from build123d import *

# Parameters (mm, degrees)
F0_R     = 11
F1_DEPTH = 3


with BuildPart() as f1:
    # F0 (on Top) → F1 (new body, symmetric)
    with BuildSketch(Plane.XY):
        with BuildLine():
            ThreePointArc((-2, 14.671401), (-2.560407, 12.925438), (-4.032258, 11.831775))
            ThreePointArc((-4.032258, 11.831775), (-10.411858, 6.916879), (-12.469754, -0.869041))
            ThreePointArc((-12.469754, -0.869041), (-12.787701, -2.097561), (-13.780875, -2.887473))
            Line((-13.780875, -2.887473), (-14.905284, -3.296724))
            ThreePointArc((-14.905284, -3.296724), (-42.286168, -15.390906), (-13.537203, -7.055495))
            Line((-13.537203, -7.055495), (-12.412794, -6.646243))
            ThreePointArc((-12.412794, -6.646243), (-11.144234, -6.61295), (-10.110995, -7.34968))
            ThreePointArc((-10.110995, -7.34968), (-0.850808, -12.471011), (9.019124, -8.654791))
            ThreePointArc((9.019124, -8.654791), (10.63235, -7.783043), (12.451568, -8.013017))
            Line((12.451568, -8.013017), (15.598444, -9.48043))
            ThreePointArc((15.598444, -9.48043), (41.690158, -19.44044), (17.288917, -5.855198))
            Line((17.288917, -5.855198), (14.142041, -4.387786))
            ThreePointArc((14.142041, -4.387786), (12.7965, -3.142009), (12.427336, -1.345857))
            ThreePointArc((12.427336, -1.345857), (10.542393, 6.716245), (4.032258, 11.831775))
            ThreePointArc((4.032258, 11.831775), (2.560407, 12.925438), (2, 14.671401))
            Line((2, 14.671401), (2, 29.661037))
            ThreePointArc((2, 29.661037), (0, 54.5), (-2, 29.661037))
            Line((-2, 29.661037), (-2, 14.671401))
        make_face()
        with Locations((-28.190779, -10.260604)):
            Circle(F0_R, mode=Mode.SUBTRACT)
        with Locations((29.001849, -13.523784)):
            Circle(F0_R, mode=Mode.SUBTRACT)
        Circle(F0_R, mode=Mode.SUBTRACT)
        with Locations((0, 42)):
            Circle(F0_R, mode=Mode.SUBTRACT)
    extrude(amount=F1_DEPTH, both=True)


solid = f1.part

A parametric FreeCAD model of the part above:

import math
import FreeCAD as App
import Part
import Sketcher

V = App.Vector
Q = App.Units.Quantity

doc = App.newDocument("Part")
params = doc.addObject("Spreadsheet::Sheet", "Params")
for row, (alias, value) in enumerate([
    ("sketch1_diameter", "22 mm"),
    ("sketch1_radius", "3 mm"),
    ("sketch1_radius2", "2.000002 mm"),
    ("sketch1_radius3", "15 mm"),
    ("sketch1_radius4", "14 mm"),
    ("pad1_length", "6 mm"),
], start=1):
    params.set(f"A{row}", alias)
    params.set(f"B{row}", "=" + value)
    params.setAlias(f"B{row}", alias)

body = doc.addObject("PartDesign::Body", "Body")

sketch1 = body.newObject("Sketcher::SketchObject", "Sketch")
sketch1.AttachmentSupport = (doc.getObject("XY_Plane"), [""])
sketch1.MapMode = "FlatFace"
sketch1.addGeometry(Part.ArcOfCircle(Part.Circle(V(-5, 14.671401, 0), V(0, 0, 1), 3), math.radians(-71.180941), math.radians(0.000007)), False)
sketch1.addGeometry(Part.ArcOfCircle(Part.Circle(V(0, 0, 0), V(0, 0, 1), 12.5), math.radians(108.819063), math.radians(183.986608)), False)
sketch1.addGeometry(Part.ArcOfCircle(Part.Circle(V(-14.464917, -1.008086, 0), V(0, 0, 1), 2.000002), math.radians(-69.999979), math.radians(3.986565)), False)
sketch1.addGeometry(Part.LineSegment(V(-13.780875, -2.887473, 0), V(-14.905284, -3.296724, 0)), False)
sketch1.addGeometry(Part.ArcOfCircle(Part.Circle(V(-28.190778, -10.260605, 0), V(0, 0, 1), 15), math.radians(27.66226), math.radians(372.337746)), False)
sketch1.addGeometry(Part.LineSegment(V(-13.537203, -7.055495, 0), V(-12.412794, -6.646243, 0)), False)
sketch1.addGeometry(Part.ArcOfCircle(Part.Circle(V(-11.728753, -8.525625, 0), V(0, 0, 1), 1.999997), math.radians(36.013323), math.radians(110.000044)), False)
sketch1.addGeometry(Part.ArcOfCircle(Part.Circle(V(0, 0.000002, 0), V(0, 0, 1), 12.500002), math.radians(-143.986596), math.radians(-43.81907)), False)
sketch1.addGeometry(Part.ArcOfCircle(Part.Circle(V(11.183714, -10.731941, 0), V(0, 0, 1), 3), math.radians(65.000018), math.radians(136.180937)), False)
sketch1.addGeometry(Part.LineSegment(V(12.451568, -8.013017, 0), V(15.598444, -9.48043, 0)), False)
sketch1.addGeometry(Part.ArcOfCircle(Part.Circle(V(29.00185, -13.523783, 0), V(0, 0, 1), 14), math.radians(163.213218), math.radians(506.786793)), False)
sketch1.addGeometry(Part.LineSegment(V(17.288917, -5.855198, 0), V(14.142041, -4.387786, 0)), False)
sketch1.addGeometry(Part.ArcOfCircle(Part.Circle(V(15.409896, -1.668863, 0), V(0, 0, 1), 3), math.radians(173.819054), math.radians(244.99999)), False)
sketch1.addGeometry(Part.ArcOfCircle(Part.Circle(V(-0.000002, -0.000001, 0), V(0, 0, 1), 12.500002), math.radians(-6.180929), math.radians(71.180932)), False)
sketch1.addGeometry(Part.ArcOfCircle(Part.Circle(V(5, 14.671401, 0), V(0, 0, 1), 3), math.radians(179.999993), math.radians(251.180941)), False)
sketch1.addGeometry(Part.LineSegment(V(2, 14.671401, 0), V(2, 29.661037, 0)), False)
sketch1.addGeometry(Part.ArcOfCircle(Part.Circle(V(0, 42, 0), V(0, 0, 1), 12.5), math.radians(-80.793104), math.radians(260.793104)), False)
sketch1.addGeometry(Part.LineSegment(V(-2, 29.661037, 0), V(-2, 14.671401, 0)), False)
sketch1.addGeometry(Part.Circle(V(-28.190779, -10.260604, 0), V(0, 0, 1), 11), False)
sketch1.addGeometry(Part.Circle(V(0, 0, 0), V(0, 0, 1), 11), False)
sketch1.addGeometry(Part.Circle(V(29.001849, -13.523784, 0), V(0, 0, 1), 11), False)
sketch1.addGeometry(Part.Circle(V(0, 42, 0), V(0, 0, 1), 11), False)
sketch1.addConstraint(Sketcher.Constraint("Tangent", 0, 1, 1, 1))
sketch1.addConstraint(Sketcher.Constraint("Tangent", 1, 2, 2, 2))
sketch1.addConstraint(Sketcher.Constraint("Tangent", 2, 1, 3, 1))
sketch1.addConstraint(Sketcher.Constraint("Coincident", 3, 2, 4, 1))
sketch1.addConstraint(Sketcher.Constraint("Coincident", 4, 2, 5, 1))
sketch1.addConstraint(Sketcher.Constraint("Tangent", 5, 2, 6, 2))
sketch1.addConstraint(Sketcher.Constraint("Tangent", 6, 1, 7, 1))
sketch1.addConstraint(Sketcher.Constraint("Tangent", 7, 2, 8, 2))
sketch1.addConstraint(Sketcher.Constraint("Tangent", 8, 1, 9, 1))
sketch1.addConstraint(Sketcher.Constraint("Coincident", 9, 2, 10, 1))
sketch1.addConstraint(Sketcher.Constraint("Coincident", 10, 2, 11, 1))
sketch1.addConstraint(Sketcher.Constraint("Tangent", 11, 2, 12, 2))
sketch1.addConstraint(Sketcher.Constraint("Tangent", 12, 1, 13, 1))
sketch1.addConstraint(Sketcher.Constraint("Tangent", 13, 2, 14, 2))
sketch1.addConstraint(Sketcher.Constraint("Tangent", 14, 1, 15, 1))
sketch1.addConstraint(Sketcher.Constraint("Coincident", 15, 2, 16, 1))
sketch1.addConstraint(Sketcher.Constraint("Coincident", 16, 2, 17, 1))
sketch1.addConstraint(Sketcher.Constraint("Tangent", 17, 2, 0, 2))
sketch1.addConstraint(Sketcher.Constraint("Vertical", 15))
sketch1.addConstraint(Sketcher.Constraint("Vertical", 17))
sketch1.addConstraint(Sketcher.Constraint("Coincident", 1, 3, -1, 1))
sketch1.addConstraint(Sketcher.Constraint("Coincident", 7, 3, -1, 1))
sketch1.addConstraint(Sketcher.Constraint("Coincident", 13, 3, -1, 1))
sketch1.addConstraint(Sketcher.Constraint("Coincident", 19, 3, -1, 1))
sketch1.addConstraint(Sketcher.Constraint("Coincident", 18, 3, 4, 3))
sketch1.addConstraint(Sketcher.Constraint("Coincident", 20, 3, 10, 3))
sketch1.addConstraint(Sketcher.Constraint("Coincident", 21, 3, 16, 3))
sketch1.addConstraint(Sketcher.Constraint("Equal", 0, 8))
sketch1.addConstraint(Sketcher.Constraint("Equal", 8, 12))
sketch1.addConstraint(Sketcher.Constraint("Equal", 7, 13))
sketch1.addConstraint(Sketcher.Constraint("Equal", 12, 14))
sketch1.addConstraint(Sketcher.Constraint("Equal", 13, 16))
sketch1.addConstraint(Sketcher.Constraint("Equal", 18, 19))
sketch1.addConstraint(Sketcher.Constraint("Equal", 19, 20))
sketch1.addConstraint(Sketcher.Constraint("Equal", 20, 21))
sketch1.addConstraint(Sketcher.Constraint("Symmetric", 0, 3, 14, 3, -2))
sketch1.addConstraint(Sketcher.Constraint("PointOnObject", 16, 3, -2))
sketch1.addConstraint(Sketcher.Constraint("Parallel", 3, 5))
sketch1.addConstraint(Sketcher.Constraint("Parallel", 9, 11))
sketch1.addConstraint(Sketcher.Constraint("Equal", 3, 5))
sketch1.addConstraint(Sketcher.Constraint("Equal", 9, 11))
sketch1.addConstraint(Sketcher.Constraint("Diameter", 18, 22.0))
sketch1.addConstraint(Sketcher.Constraint("Radius", 0, 3.0))
sketch1.addConstraint(Sketcher.Constraint("Radius", 2, 2.000002))
sketch1.addConstraint(Sketcher.Constraint("Radius", 4, 15.0))
sketch1.addConstraint(Sketcher.Constraint("Radius", 10, 14.0))
sketch1.addConstraint(Sketcher.Constraint("Radius", 1, 12.5))
sketch1.addConstraint(Sketcher.Constraint("Angle", 3, Q("-160.000018 deg")))
sketch1.addConstraint(Sketcher.Constraint("Angle", 9, Q("-25.000009 deg")))
sketch1.addConstraint(Sketcher.Constraint("DistanceX", 0, 3, -1, 1, 5.0))
sketch1.addConstraint(Sketcher.Constraint("DistanceY", -1, 1, 16, 3, 42.0))
sketch1.addConstraint(Sketcher.Constraint("Radius", 6, 1.999997))
sketch1.addConstraint(Sketcher.Constraint("DistanceX", 1, 2, 6, 3, 0.741001))
sketch1.addConstraint(Sketcher.Constraint("DistanceY", 6, 3, 3, 2, 5.228901))
sketch1.addConstraint(Sketcher.Constraint("Distance", 3, 1.196571))
sketch1.addConstraint(Sketcher.Constraint("DistanceY", 8, 3, -1, 1, 10.731941))
sketch1.addConstraint(Sketcher.Constraint("DistanceX", -1, 1, 10, 3, 29.00185))
sketch1.addConstraint(Sketcher.Constraint("DistanceY", 9, 2, -1, 1, 9.48043))
sketch1.setExpression("Constraints[41]", "Params.sketch1_diameter")
sketch1.setExpression("Constraints[42]", "Params.sketch1_radius")
sketch1.setExpression("Constraints[43]", "Params.sketch1_radius2")
sketch1.setExpression("Constraints[44]", "Params.sketch1_radius3")
sketch1.setExpression("Constraints[45]", "Params.sketch1_radius4")
pad1 = body.newObject("PartDesign::Pad", "Pad")
pad1.Profile = sketch1
pad1.setExpression("Length", "Params.pad1_length")
pad1.Midplane = True

doc.recompute()
